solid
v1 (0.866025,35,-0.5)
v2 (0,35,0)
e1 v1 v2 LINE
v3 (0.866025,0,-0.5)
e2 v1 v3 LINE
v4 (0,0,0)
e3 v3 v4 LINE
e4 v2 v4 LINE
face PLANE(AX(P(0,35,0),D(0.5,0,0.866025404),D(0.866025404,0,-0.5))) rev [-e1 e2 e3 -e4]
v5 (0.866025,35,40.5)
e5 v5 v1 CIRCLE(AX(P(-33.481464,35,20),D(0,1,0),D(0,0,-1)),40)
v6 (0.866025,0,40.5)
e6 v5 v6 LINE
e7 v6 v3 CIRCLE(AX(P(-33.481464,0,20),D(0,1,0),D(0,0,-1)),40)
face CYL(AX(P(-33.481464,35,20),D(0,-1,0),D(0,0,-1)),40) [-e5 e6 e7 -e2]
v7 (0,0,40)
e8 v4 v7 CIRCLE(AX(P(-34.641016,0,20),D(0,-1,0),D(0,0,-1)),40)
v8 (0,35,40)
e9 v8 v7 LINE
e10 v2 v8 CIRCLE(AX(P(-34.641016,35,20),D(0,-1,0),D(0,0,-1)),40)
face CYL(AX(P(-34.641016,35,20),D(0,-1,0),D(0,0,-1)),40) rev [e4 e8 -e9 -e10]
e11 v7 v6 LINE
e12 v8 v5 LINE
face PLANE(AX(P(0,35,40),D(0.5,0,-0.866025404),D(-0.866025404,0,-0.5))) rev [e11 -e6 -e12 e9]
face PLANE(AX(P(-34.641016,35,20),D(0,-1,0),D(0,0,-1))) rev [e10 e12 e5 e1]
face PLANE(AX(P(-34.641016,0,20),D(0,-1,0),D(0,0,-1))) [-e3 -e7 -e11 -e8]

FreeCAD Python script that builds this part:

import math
import FreeCAD as App
import Part
import Sketcher
Q = App.Units.Quantity

doc = App.newDocument("Part")
params = doc.addObject("Spreadsheet::Sheet", "Params")
for row, (alias, value) in enumerate([
    ("sketch1_radius", "40 mm"),
    ("sketch1_length", "1 mm"),
    ("pad1_length", "35 mm"),
], start=1):
    params.set(f"A{row}", alias)
    params.set(f"B{row}", "=" + value)
    params.setAlias(f"B{row}", alias)

body = doc.addObject("PartDesign::Body", "Body")

# Sketch on XZ plane
sketch1 = body.newObject("Sketcher::SketchObject", "Sketch")
sketch1.AttachmentSupport = (doc.getObject("XZ_Plane"), [""])
sketch1.MapMode = "FlatFace"
sketch1.addGeometry(Part.LineSegment(App.Vector(0.9, -0.5, 0), App.Vector(0, 0, 0)), False)
sketch1.addGeometry(Part.ArcOfCircle(Part.Circle(App.Vector(-34.6, 20, 0), App.Vector(0, 0, 1), 40), math.radians(-30), math.radians(30)), False)
sketch1.addGeometry(Part.LineSegment(App.Vector(0, 40, 0), App.Vector(0.9, 40.5, 0)), False)
sketch1.addGeometry(Part.ArcOfCircle(Part.Circle(App.Vector(-33.5, 20, 0), App.Vector(0, 0, 1), 40), math.radians(-31), math.radians(31)), False)
sketch1.addConstraint(Sketcher.Constraint("Coincident", 0, 2, 1, 1))
sketch1.addConstraint(Sketcher.Constraint("Coincident", 1, 2, 2, 1))
sketch1.addConstraint(Sketcher.Constraint("Coincident", 2, 2, 3, 2))
sketch1.addConstraint(Sketcher.Constraint("Coincident", 3, 1, 0, 1))
sketch1.addConstraint(Sketcher.Constraint("Coincident", 0, 2, -1, 1))
sketch1.addConstraint(Sketcher.Constraint("Equal", 1, 3))
sketch1.addConstraint(Sketcher.Constraint("PointOnObject", 1, 2, -2))
sketch1.addConstraint(Sketcher.Constraint("Horizontal", 1, 3, 3, 3))
sketch1.addConstraint(Sketcher.Constraint("Vertical", 2, 2, 3, 1))
sketch1.addConstraint(Sketcher.Constraint("Radius", 1, 40.0))
sketch1.addConstraint(Sketcher.Constraint("Angle", 0, Q("150 deg")))
sketch1.addConstraint(Sketcher.Constraint("Distance", 0, 1.0))
sketch1.addConstraint(Sketcher.Constraint("DistanceY", -1, 1, 1, 3, 20.0))
sketch1.setExpression("Constraints[9]", "Params.sketch1_radius")
sketch1.setExpression("Constraints[11]", "Params.sketch1_length")
pad1 = body.newObject("PartDesign::Pad", "Pad")
pad1.Profile = sketch1
pad1.setExpression("Length", "Params.pad1_length")
pad1.Reversed = True

doc.recompute()
